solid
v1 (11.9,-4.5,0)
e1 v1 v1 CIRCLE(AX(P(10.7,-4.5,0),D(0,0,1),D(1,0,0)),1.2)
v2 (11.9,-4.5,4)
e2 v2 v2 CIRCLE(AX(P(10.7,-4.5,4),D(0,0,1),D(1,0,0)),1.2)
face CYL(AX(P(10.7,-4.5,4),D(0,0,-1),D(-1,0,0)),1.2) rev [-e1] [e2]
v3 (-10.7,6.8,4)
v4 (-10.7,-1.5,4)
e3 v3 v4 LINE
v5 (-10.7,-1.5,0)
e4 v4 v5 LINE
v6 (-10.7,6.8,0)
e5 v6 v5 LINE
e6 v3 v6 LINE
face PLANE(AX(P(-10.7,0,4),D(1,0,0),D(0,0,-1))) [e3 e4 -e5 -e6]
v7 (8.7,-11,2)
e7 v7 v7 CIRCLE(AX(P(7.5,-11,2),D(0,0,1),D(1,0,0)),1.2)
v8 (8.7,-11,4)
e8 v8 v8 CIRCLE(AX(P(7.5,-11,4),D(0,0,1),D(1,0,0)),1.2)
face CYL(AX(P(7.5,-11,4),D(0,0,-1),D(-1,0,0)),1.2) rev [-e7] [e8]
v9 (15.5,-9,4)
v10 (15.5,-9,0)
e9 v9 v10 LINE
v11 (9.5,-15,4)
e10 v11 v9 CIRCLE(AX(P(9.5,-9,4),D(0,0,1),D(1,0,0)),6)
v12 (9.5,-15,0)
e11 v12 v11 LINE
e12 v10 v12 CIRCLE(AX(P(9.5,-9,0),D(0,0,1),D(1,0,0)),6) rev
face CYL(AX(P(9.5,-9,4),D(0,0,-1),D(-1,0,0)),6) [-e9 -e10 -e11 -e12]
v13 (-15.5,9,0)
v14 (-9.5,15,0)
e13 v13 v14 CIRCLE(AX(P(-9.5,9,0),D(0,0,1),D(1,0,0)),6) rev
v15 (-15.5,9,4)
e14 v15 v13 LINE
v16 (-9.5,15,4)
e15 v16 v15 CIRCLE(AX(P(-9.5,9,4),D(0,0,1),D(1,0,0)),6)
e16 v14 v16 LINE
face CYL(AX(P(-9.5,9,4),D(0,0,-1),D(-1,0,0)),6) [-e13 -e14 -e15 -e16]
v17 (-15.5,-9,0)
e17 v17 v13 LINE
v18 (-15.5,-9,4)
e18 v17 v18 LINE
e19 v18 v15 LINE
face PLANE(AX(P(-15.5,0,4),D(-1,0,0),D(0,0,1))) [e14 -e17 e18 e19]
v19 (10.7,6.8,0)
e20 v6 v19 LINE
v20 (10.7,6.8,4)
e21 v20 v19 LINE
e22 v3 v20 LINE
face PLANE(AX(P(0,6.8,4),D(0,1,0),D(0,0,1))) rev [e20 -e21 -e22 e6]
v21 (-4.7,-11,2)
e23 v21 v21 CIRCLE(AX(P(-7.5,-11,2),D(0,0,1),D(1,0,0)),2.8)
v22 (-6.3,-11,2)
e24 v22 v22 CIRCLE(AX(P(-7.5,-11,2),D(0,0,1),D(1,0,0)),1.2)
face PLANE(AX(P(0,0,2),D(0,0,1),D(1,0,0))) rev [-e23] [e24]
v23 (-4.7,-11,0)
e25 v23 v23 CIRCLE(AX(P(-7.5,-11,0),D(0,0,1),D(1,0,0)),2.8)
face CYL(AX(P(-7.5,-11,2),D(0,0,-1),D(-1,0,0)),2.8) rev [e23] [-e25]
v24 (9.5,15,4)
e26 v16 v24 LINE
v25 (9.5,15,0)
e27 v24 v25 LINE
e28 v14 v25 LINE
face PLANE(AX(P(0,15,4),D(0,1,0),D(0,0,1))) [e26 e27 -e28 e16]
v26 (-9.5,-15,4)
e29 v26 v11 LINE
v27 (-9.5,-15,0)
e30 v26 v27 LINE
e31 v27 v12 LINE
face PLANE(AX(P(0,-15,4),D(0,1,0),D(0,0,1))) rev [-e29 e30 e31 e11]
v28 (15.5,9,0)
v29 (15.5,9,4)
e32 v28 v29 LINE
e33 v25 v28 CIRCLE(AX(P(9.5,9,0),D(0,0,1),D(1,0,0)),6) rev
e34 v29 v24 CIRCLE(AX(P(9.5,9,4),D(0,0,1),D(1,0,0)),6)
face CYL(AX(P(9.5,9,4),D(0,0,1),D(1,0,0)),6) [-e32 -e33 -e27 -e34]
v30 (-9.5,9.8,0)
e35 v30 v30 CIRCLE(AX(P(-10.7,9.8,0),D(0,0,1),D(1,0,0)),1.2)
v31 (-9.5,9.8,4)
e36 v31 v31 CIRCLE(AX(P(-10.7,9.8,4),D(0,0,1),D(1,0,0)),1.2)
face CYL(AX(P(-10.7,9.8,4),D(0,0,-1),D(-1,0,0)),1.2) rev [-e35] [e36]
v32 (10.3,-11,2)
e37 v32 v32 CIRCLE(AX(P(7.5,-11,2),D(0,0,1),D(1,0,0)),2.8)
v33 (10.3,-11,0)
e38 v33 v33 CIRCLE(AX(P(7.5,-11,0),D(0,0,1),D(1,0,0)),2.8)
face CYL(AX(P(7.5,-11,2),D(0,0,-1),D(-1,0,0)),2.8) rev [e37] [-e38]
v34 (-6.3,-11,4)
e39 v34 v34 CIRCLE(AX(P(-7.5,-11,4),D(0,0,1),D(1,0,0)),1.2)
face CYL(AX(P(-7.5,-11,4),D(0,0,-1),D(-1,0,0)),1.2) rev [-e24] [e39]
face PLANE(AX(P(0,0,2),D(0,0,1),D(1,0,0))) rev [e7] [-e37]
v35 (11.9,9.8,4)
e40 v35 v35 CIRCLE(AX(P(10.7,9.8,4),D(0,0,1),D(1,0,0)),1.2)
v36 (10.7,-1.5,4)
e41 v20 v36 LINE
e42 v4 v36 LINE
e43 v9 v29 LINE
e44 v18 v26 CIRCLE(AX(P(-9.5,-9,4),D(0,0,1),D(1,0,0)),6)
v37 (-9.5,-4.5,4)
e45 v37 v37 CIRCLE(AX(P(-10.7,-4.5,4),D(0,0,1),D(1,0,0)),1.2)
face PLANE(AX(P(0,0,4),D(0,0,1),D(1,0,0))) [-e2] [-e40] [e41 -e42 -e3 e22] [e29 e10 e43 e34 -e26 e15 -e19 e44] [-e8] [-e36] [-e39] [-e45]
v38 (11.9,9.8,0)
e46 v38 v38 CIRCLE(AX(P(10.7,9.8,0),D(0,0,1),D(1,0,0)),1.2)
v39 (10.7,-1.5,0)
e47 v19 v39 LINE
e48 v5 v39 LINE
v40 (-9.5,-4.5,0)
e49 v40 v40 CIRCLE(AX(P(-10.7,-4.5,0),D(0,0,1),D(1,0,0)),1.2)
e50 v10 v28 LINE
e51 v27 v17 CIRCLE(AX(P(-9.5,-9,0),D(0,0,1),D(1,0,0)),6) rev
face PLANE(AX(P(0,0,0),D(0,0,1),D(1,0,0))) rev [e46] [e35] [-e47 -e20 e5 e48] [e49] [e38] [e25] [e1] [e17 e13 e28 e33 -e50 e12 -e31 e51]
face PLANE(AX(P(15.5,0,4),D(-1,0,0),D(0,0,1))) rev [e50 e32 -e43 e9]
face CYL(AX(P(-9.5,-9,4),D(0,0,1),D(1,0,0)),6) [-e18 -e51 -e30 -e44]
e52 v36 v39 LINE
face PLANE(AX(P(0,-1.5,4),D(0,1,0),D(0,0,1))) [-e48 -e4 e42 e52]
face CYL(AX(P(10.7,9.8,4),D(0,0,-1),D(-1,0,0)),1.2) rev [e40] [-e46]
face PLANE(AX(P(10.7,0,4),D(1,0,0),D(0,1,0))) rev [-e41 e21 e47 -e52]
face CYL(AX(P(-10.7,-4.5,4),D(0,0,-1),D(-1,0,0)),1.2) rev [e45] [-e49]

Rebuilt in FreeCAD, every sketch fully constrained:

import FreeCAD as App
import Part
import Sketcher
Q = App.Units.Quantity


def edges_at(feature, points):
    """Names of the edges that pass closest to the given points."""
    edges = feature.Shape.Edges
    near = lambda p: min(range(len(edges)), key=lambda i: edges[i].distToShape(Part.Vertex(*p))[0])
    return sorted({f"Edge{near(p) + 1}" for p in points})

doc = App.newDocument("Part")
body = doc.addObject("PartDesign::Body", "Body")

sketch1 = body.newObject("Sketcher::SketchObject", "Sketch")
sketch1.AttachmentSupport = (doc.getObject("XY_Plane"), [""])
sketch1.MapMode = "FlatFace"
sketch1.addGeometry(Part.LineSegment(App.Vector(-15.5, 15, 0), App.Vector(-15.5, -15, 0)), False)
sketch1.addGeometry(Part.LineSegment(App.Vector(-15.5, -15, 0), App.Vector(15.5, -15, 0)), False)
sketch1.addGeometry(Part.LineSegment(App.Vector(15.5, -15, 0), App.Vector(15.5, 15, 0)), False)
sketch1.addGeometry(Part.LineSegment(App.Vector(15.5, 15, 0), App.Vector(-15.5, 15, 0)), False)
sketch1.addGeometry(Part.Circle(App.Vector(-7.5, -11, 0), App.Vector(0, 0, 1), 1.2), False)
sketch1.addGeometry(Part.Circle(App.Vector(-10.7, -4.5, 0), App.Vector(0, 0, 1), 1.2), False)
sketch1.addGeometry(Part.Circle(App.Vector(7.5, -11, 0), App.Vector(0, 0, 1), 1.2), False)
sketch1.addGeometry(Part.Circle(App.Vector(10.7, -4.5, 0), App.Vector(0, 0, 1), 1.2), False)
sketch1.addGeometry(Part.Circle(App.Vector(-10.7, 9.8, 0), App.Vector(0, 0, 1), 1.2), False)
sketch1.addGeometry(Part.LineSegment(App.Vector(10.7, -1.5, 0), App.Vector(-10.7, -1.5, 0)), False)
sketch1.addGeometry(Part.LineSegment(App.Vector(-10.7, -1.5, 0), App.Vector(-10.7, 6.8, 0)), False)
sketch1.addGeometry(Part.LineSegment(App.Vector(-10.7, 6.8, 0), App.Vector(10.7, 6.8, 0)), False)
sketch1.addGeometry(Part.LineSegment(App.Vector(10.7, 6.8, 0), App.Vector(10.7, -1.5, 0)), False)
sketch1.addGeometry(Part.Circle(App.Vector(10.7, 9.8, 0), App.Vector(0, 0, 1), 1.2), False)
sketch1.addConstraint(Sketcher.Constraint("Coincident", 0, 2, 1, 1))
sketch1.addConstraint(Sketcher.Constraint("Coincident", 1, 2, 2, 1))
sketch1.addConstraint(Sketcher.Constraint("Coincident", 2, 2, 3, 1))
sketch1.addConstraint(Sketcher.Constraint("Coincident", 3, 2, 0, 1))
sketch1.addConstraint(Sketcher.Constraint("Coincident", 9, 2, 10, 1))
sketch1.addConstraint(Sketcher.Constraint("Coincident", 10, 2, 11, 1))
sketch1.addConstraint(Sketcher.Constraint("Coincident", 11, 2, 12, 1))
sketch1.addConstraint(Sketcher.Constraint("Coincident", 12, 2, 9, 1))
sketch1.addConstraint(Sketcher.Constraint("Vertical", 0))
sketch1.addConstraint(Sketcher.Constraint("Horizontal", 1))
sketch1.addConstraint(Sketcher.Constraint("Vertical", 2))
sketch1.addConstraint(Sketcher.Constraint("Horizontal", 3))
sketch1.addConstraint(Sketcher.Constraint("Horizontal", 9))
sketch1.addConstraint(Sketcher.Constraint("Vertical", 10))
sketch1.addConstraint(Sketcher.Constraint("Horizontal", 11))
sketch1.addConstraint(Sketcher.Constraint("Vertical", 12))
sketch1.addConstraint(Sketcher.Constraint("Equal", 4, 5))
sketch1.addConstraint(Sketcher.Constraint("Equal", 5, 6))
sketch1.addConstraint(Sketcher.Constraint("Equal", 6, 7))
sketch1.addConstraint(Sketcher.Constraint("Equal", 7, 8))
sketch1.addConstraint(Sketcher.Constraint("Equal", 8, 13))
sketch1.addConstraint(Sketcher.Constraint("Symmetric", 0, 2, 2, 2, -1, 1))
sketch1.addConstraint(Sketcher.Constraint("Symmetric", 4, 3, 6, 3, -2))
sketch1.addConstraint(Sketcher.Constraint("Symmetric", 5, 3, 7, 3, -2))
sketch1.addConstraint(Sketcher.Constraint("Symmetric", 8, 3, 13, 3, -2))
sketch1.addConstraint(Sketcher.Constraint("Vertical", 5, 3, 8, 3))
sketch1.addConstraint(Sketcher.Constraint("Vertical", 8, 3, 9, 2))
sketch1.addConstraint(Sketcher.Constraint("Vertical", 13, 3, 11, 2))
sketch1.addConstraint(Sketcher.Constraint("Diameter", 4, Q("2.4 mm")))
sketch1.addConstraint(Sketcher.Constraint("DistanceX", 1, 1, 1, 2, Q("31 mm")))
sketch1.addConstraint(Sketcher.Constraint("DistanceY", 0, 2, 0, 1, Q("30 mm")))
sketch1.addConstraint(Sketcher.Constraint("DistanceX", 9, 2, 9, 1, Q("21.4 mm")))
sketch1.addConstraint(Sketcher.Constraint("DistanceY", 10, 1, 10, 2, Q("8.3 mm")))
sketch1.addConstraint(Sketcher.Constraint("DistanceY", 4, 3, -1, 1, Q("11 mm")))
sketch1.addConstraint(Sketcher.Constraint("DistanceX", 4, 3, 6, 3, Q("15 mm")))
sketch1.addConstraint(Sketcher.Constraint("DistanceY", 5, 3, 9, 2, Q("3 mm")))
sketch1.addConstraint(Sketcher.Constraint("DistanceY", 10, 2, 8, 3, Q("3 mm")))
sketch1.addConstraint(Sketcher.Constraint("DistanceY", 5, 3, -1, 1, Q("4.5 mm")))
pad1 = body.newObject("PartDesign::Pad", "Pad")
pad1.Profile = sketch1
pad1.Length = 4

sketch2 = body.newObject("Sketcher::SketchObject", "Sketch001")
sketch2.AttachmentSupport = (doc.getObject("XY_Plane"), [""])
sketch2.MapMode = "FlatFace"
sketch2.addGeometry(Part.Circle(App.Vector(-7.5, -11, 0), App.Vector(0, 0, 1), 2.8), False)
sketch2.addGeometry(Part.Circle(App.Vector(-7.5, -11, 0), App.Vector(0, 0, 1), 1.2), False)
sketch2.addGeometry(Part.Circle(App.Vector(7.5, -11, 0), App.Vector(0, 0, 1), 2.8), False)
sketch2.addGeometry(Part.Circle(App.Vector(7.5, -11, 0), App.Vector(0, 0, 1), 1.2), False)
sketch2.addConstraint(Sketcher.Constraint("Coincident", 1, 3, 0, 3))
sketch2.addConstraint(Sketcher.Constraint("Coincident", 3, 3, 2, 3))
sketch2.addConstraint(Sketcher.Constraint("Equal", 0, 2))
sketch2.addConstraint(Sketcher.Constraint("Equal", 1, 3))
sketch2.addConstraint(Sketcher.Constraint("Symmetric", 0, 3, 2, 3, -2))
sketch2.addConstraint(Sketcher.Constraint("Diameter", 0, Q("5.6 mm")))
sketch2.addConstraint(Sketcher.Constraint("Diameter", 1, Q("2.4 mm")))
sketch2.addConstraint(Sketcher.Constraint("DistanceY", 0, 3, -1, 1, Q("11 mm")))
sketch2.addConstraint(Sketcher.Constraint("DistanceX", 0, 3, 2, 3, Q("15 mm")))
pocket1 = body.newObject("PartDesign::Pocket", "Pocket")
pocket1.Profile = sketch2
pocket1.Length = 2
pocket1.Reversed = True
doc.recompute()

fillet = body.newObject("PartDesign::Fillet", "Fillet")
fillet.Base = (pocket1, edges_at(pocket1, [
    (-15.5, -15, 2),
    (-15.5, 15, 2),
    (15.5, 15, 2),
    (15.5, -15, 2),
]))
fillet.Radius = 6

doc.recompute()
